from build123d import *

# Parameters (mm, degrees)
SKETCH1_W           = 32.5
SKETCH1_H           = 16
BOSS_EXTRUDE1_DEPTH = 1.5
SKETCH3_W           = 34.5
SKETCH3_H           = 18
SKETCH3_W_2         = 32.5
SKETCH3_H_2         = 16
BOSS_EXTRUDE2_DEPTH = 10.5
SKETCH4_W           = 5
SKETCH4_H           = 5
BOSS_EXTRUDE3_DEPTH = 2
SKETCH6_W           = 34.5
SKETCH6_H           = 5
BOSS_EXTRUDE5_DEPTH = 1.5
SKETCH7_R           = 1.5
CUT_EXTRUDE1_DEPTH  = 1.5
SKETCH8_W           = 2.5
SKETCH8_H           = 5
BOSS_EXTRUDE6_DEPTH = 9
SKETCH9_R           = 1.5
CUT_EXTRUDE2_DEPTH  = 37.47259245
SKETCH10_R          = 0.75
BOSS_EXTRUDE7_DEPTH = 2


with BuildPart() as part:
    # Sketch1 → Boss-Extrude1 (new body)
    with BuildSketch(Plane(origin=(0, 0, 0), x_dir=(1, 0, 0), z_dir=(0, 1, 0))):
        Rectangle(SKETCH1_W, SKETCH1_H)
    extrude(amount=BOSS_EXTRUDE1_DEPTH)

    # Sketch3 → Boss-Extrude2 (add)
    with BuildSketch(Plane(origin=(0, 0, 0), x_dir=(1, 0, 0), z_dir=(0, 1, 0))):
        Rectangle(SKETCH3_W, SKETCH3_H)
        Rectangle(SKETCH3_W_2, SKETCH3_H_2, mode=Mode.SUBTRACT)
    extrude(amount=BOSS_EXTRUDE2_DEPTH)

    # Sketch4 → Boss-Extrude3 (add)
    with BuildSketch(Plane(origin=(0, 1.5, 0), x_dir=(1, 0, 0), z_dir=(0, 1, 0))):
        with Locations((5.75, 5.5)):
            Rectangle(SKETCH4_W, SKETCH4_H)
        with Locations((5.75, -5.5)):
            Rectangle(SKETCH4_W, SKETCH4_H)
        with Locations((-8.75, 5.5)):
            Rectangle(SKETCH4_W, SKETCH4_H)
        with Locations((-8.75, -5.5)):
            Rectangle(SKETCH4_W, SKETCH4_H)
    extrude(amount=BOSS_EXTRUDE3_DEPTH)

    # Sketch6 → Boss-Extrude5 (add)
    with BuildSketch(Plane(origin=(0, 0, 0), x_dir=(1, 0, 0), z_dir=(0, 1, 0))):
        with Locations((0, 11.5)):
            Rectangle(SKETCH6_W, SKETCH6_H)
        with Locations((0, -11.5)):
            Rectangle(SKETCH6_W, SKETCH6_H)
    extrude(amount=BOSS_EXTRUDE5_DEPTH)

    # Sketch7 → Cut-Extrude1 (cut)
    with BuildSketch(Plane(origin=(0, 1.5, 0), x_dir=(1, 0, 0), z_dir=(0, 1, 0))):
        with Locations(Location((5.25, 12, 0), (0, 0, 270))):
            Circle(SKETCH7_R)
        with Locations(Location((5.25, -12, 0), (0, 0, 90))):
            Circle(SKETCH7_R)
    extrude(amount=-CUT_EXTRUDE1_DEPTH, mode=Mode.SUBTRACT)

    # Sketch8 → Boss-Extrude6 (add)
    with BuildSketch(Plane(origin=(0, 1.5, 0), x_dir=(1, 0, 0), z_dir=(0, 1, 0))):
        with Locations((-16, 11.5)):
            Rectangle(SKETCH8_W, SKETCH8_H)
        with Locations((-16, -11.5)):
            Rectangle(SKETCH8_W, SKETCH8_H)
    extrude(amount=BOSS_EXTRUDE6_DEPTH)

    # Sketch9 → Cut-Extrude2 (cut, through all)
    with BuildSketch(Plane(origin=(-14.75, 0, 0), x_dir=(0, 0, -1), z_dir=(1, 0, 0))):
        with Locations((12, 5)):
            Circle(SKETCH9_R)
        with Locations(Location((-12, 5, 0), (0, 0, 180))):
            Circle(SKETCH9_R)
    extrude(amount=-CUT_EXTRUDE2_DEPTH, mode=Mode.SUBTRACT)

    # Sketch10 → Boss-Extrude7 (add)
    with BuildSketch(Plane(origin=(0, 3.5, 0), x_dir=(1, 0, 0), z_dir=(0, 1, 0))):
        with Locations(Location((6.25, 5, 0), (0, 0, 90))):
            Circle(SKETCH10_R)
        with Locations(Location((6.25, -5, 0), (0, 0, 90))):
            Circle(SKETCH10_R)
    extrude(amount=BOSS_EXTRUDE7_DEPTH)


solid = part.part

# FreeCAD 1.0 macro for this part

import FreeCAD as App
import Part
import Sketcher

V = App.Vector

doc = App.newDocument("Part")
params = doc.addObject("Spreadsheet::Sheet", "Params")
for row, (alias, value) in enumerate([
    ("sketch1_height", "16 mm"),
    ("sketch1_width", "32.5 mm"),
    ("pad1_length", "1.5 mm"),
    ("sketch2_height", "18 mm"),
    ("sketch2_height2", "16 mm"),
    ("sketch2_width", "34.5 mm"),
    ("sketch2_width2", "32.5 mm"),
    ("pad2_length", "10.5 mm"),
    ("sketch3_width", "5 mm"),
    ("pad3_length", "2 mm"),
    ("sketch4_height", "5 mm"),
    ("sketch4_width", "34.5 mm"),
    ("pad4_length", "1.5 mm"),
    ("sketch5_diameter", "3 mm"),
    ("pocket1_length", "1.5 mm"),
    ("sketch6_height", "5 mm"),
    ("sketch6_width", "2.5 mm"),
    ("pad5_length", "9 mm"),
    ("sketch7_diameter", "3 mm"),
    ("sketch8_diameter", "1.5 mm"),
    ("pad6_length", "2 mm"),
], start=1):
    params.set(f"A{row}", alias)
    params.set(f"B{row}", "=" + value)
    params.setAlias(f"B{row}", alias)

body = doc.addObject("PartDesign::Body", "Body")

sketch1 = body.newObject("Sketcher::SketchObject", "Sketch")
sketch1.AttachmentSupport = (doc.getObject("XZ_Plane"), [""])
sketch1.MapMode = "FlatFace"
sketch1.addGeometry([
    Part.LineSegment(V(-16, -8, 0), V(-16, 8, 0)),
    Part.LineSegment(V(-16, 8, 0), V(16, 8, 0)),
    Part.LineSegment(V(16, 8, 0), V(16, -8, 0)),
    Part.LineSegment(V(16, -8, 0), V(-16, -8, 0)),
], False)
sketch1.addConstraint([
    Sketcher.Constraint("Coincident", 0, 2, 1, 1),
    Sketcher.Constraint("Coincident", 1, 2, 2, 1),
    Sketcher.Constraint("Coincident", 2, 2, 3, 1),
    Sketcher.Constraint("Coincident", 3, 2, 0, 1),
    Sketcher.Constraint("Vertical", 0),
    Sketcher.Constraint("Horizontal", 1),
    Sketcher.Constraint("Vertical", 2),
    Sketcher.Constraint("Horizontal", 3),
    Sketcher.Constraint("Symmetric", 0, 2, 2, 2, -1, 1),
    Sketcher.Constraint("DistanceY", 0, 1, 0, 2, 16.0),
    Sketcher.Constraint("DistanceX", 1, 1, 1, 2, 32.5),
])
sketch1.setExpression("Constraints[9]", "Params.sketch1_height")
sketch1.setExpression("Constraints[10]", "Params.sketch1_width")
pad1 = body.newObject("PartDesign::Pad", "Pad")
pad1.Profile = sketch1
pad1.setExpression("Length", "Params.pad1_length")
pad1.Reversed = True

sketch2 = body.newObject("Sketcher::SketchObject", "Sketch001")
sketch2.AttachmentSupport = (doc.getObject("XZ_Plane"), [""])
sketch2.MapMode = "FlatFace"
sketch2.addGeometry([
    Part.LineSegment(V(-17, -9, 0), V(-17, 9, 0)),
    Part.LineSegment(V(-17, 9, 0), V(17, 9, 0)),
    Part.LineSegment(V(17, 9, 0), V(17, -9, 0)),
    Part.LineSegment(V(17, -9, 0), V(-17, -9, 0)),
    Part.LineSegment(V(16, 8, 0), V(-16, 8, 0)),
    Part.LineSegment(V(-16, 8, 0), V(-16, -8, 0)),
    Part.LineSegment(V(-16, -8, 0), V(16, -8, 0)),
    Part.LineSegment(V(16, -8, 0), V(16, 8, 0)),
], False)
sketch2.addConstraint([
    Sketcher.Constraint("Coincident", 0, 2, 1, 1),
    Sketcher.Constraint("Coincident", 1, 2, 2, 1),
    Sketcher.Constraint("Coincident", 2, 2, 3, 1),
    Sketcher.Constraint("Coincident", 3, 2, 0, 1),
    Sketcher.Constraint("Coincident", 4, 2, 5, 1),
    Sketcher.Constraint("Coincident", 5, 2, 6, 1),
    Sketcher.Constraint("Coincident", 6, 2, 7, 1),
    Sketcher.Constraint("Coincident", 7, 2, 4, 1),
    Sketcher.Constraint("Vertical", 0),
    Sketcher.Constraint("Horizontal", 1),
    Sketcher.Constraint("Vertical", 2),
    Sketcher.Constraint("Horizontal", 3),
    Sketcher.Constraint("Horizontal", 4),
    Sketcher.Constraint("Vertical", 5),
    Sketcher.Constraint("Horizontal", 6),
    Sketcher.Constraint("Vertical", 7),
    Sketcher.Constraint("Symmetric", 0, 2, 2, 2, -1, 1),
    Sketcher.Constraint("Symmetric", 4, 2, 6, 2, -1, 1),
    Sketcher.Constraint("DistanceY", 0, 1, 0, 2, 18.0),
    Sketcher.Constraint("DistanceY", 5, 2, 5, 1, 16.0),
    Sketcher.Constraint("DistanceX", 1, 1, 1, 2, 34.5),
    Sketcher.Constraint("DistanceX", 4, 2, 4, 1, 32.5),
])
sketch2.setExpression("Constraints[18]", "Params.sketch2_height")
sketch2.setExpression("Constraints[19]", "Params.sketch2_height2")
sketch2.setExpression("Constraints[20]", "Params.sketch2_width")
sketch2.setExpression("Constraints[21]", "Params.sketch2_width2")
pad2 = body.newObject("PartDesign::Pad", "Pad001")
pad2.Profile = sketch2
pad2.setExpression("Length", "Params.pad2_length")
pad2.Reversed = True

sketch3 = body.newObject("Sketcher::SketchObject", "Sketch002")
sketch3.AttachmentSupport = (doc.getObject("XZ_Plane"), [""])
sketch3.MapMode = "FlatFace"
sketch3.AttachmentOffset = App.Placement(V(0, 0, -1.5), App.Rotation())
sketch3.addGeometry([
    Part.LineSegment(V(3, -8, 0), V(3, -3, 0)),
    Part.LineSegment(V(3, -3, 0), V(8, -3, 0)),
    Part.LineSegment(V(8, -3, 0), V(8, -8, 0)),
    Part.LineSegment(V(8, -8, 0), V(3, -8, 0)),
    Part.LineSegment(V(3, 3, 0), V(3, 8, 0)),
    Part.LineSegment(V(3, 8, 0), V(8, 8, 0)),
    Part.LineSegment(V(8, 8, 0), V(8, 3, 0)),
    Part.LineSegment(V(8, 3, 0), V(3, 3, 0)),
    Part.LineSegment(V(-11, -8, 0), V(-11, -3, 0)),
    Part.LineSegment(V(-11, -3, 0), V(-6, -3, 0)),
    Part.LineSegment(V(-6, -3, 0), V(-6, -8, 0)),
    Part.LineSegment(V(-6, -8, 0), V(-11, -8, 0)),
    Part.LineSegment(V(-11, 3, 0), V(-11, 8, 0)),
    Part.LineSegment(V(-11, 8, 0), V(-6, 8, 0)),
    Part.LineSegment(V(-6, 8, 0), V(-6, 3, 0)),
    Part.LineSegment(V(-6, 3, 0), V(-11, 3, 0)),
], False)
sketch3.addConstraint([
    Sketcher.Constraint("Coincident", 0, 2, 1, 1),
    Sketcher.Constraint("Coincident", 1, 2, 2, 1),
    Sketcher.Constraint("Coincident", 2, 2, 3, 1),
    Sketcher.Constraint("Coincident", 3, 2, 0, 1),
    Sketcher.Constraint("Coincident", 4, 2, 5, 1),
    Sketcher.Constraint("Coincident", 5, 2, 6, 1),
    Sketcher.Constraint("Coincident", 6, 2, 7, 1),
    Sketcher.Constraint("Coincident", 7, 2, 4, 1),
    Sketcher.Constraint("Coincident", 8, 2, 9, 1),
    Sketcher.Constraint("Coincident", 9, 2, 10, 1),
    Sketcher.Constraint("Coincident", 10, 2, 11, 1),
    Sketcher.Constraint("Coincident", 11, 2, 8, 1),
    Sketcher.Constraint("Coincident", 12, 2, 13, 1),
    Sketcher.Constraint("Coincident", 13, 2, 14, 1),
    Sketcher.Constraint("Coincident", 14, 2, 15, 1),
    Sketcher.Constraint("Coincident", 15, 2, 12, 1),
    Sketcher.Constraint("Vertical", 0),
    Sketcher.Constraint("Horizontal", 1),
    Sketcher.Constraint("Vertical", 2),
    Sketcher.Constraint("Horizontal", 3),
    Sketcher.Constraint("Vertical", 4),
    Sketcher.Constraint("Horizontal", 5),
    Sketcher.Constraint("Vertical", 6),
    Sketcher.Constraint("Horizontal", 7),
    Sketcher.Constraint("Vertical", 8),
    Sketcher.Constraint("Horizontal", 9),
    Sketcher.Constraint("Vertical", 10),
    Sketcher.Constraint("Horizontal", 11),
    Sketcher.Constraint("Vertical", 12),
    Sketcher.Constraint("Horizontal", 13),
    Sketcher.Constraint("Vertical", 14),
    Sketcher.Constraint("Horizontal", 15),
    Sketcher.Constraint("Symmetric", 3, 2, 4, 2, -1),
    Sketcher.Constraint("Symmetric", 1, 2, 6, 2, -1),
    Sketcher.Constraint("Symmetric", 11, 2, 12, 2, -1),
    Sketcher.Constraint("Symmetric", 9, 2, 14, 2, -1),
    Sketcher.Constraint("Horizontal", 1, 2, 8, 2),
    Sketcher.Constraint("Horizontal", 3, 2, 10, 2),
    Sketcher.Constraint("Equal", 7, 9),
    Sketcher.Constraint("Equal", 15, 0),
    Sketcher.Constraint("DistanceX", 1, 1, 1, 2, 5.0),
    Sketcher.Constraint("DistanceY", 0, 2, -1, 1, 3.0),
    Sketcher.Constraint("DistanceX", 8, 2, 0, 2, 14.5),
    Sketcher.Constraint("DistanceX", -1, 1, 0, 2, 3.25),
])
sketch3.setExpression("Constraints[40]", "Params.sketch3_width")
pad3 = body.newObject("PartDesign::Pad", "Pad002")
pad3.Profile = sketch3
pad3.setExpression("Length", "Params.pad3_length")
pad3.Reversed = True

sketch4 = body.newObject("Sketcher::SketchObject", "Sketch003")
sketch4.AttachmentSupport = (doc.getObject("XZ_Plane"), [""])
sketch4.MapMode = "FlatFace"
sketch4.addGeometry([
    Part.LineSegment(V(-17, -14, 0), V(-17, -9, 0)),
    Part.LineSegment(V(-17, -9, 0), V(17, -9, 0)),
    Part.LineSegment(V(17, -9, 0), V(17, -14, 0)),
    Part.LineSegment(V(17, -14, 0), V(-17, -14, 0)),
    Part.LineSegment(V(-17, 9, 0), V(-17, 14, 0)),
    Part.LineSegment(V(-17, 14, 0), V(17, 14, 0)),
    Part.LineSegment(V(17, 14, 0), V(17, 9, 0)),
    Part.LineSegment(V(17, 9, 0), V(-17, 9, 0)),
], False)
sketch4.addConstraint([
    Sketcher.Constraint("Coincident", 0, 2, 1, 1),
    Sketcher.Constraint("Coincident", 1, 2, 2, 1),
    Sketcher.Constraint("Coincident", 2, 2, 3, 1),
    Sketcher.Constraint("Coincident", 3, 2, 0, 1),
    Sketcher.Constraint("Coincident", 4, 2, 5, 1),
    Sketcher.Constraint("Coincident", 5, 2, 6, 1),
    Sketcher.Constraint("Coincident", 6, 2, 7, 1),
    Sketcher.Constraint("Coincident", 7, 2, 4, 1),
    Sketcher.Constraint("Vertical", 0),
    Sketcher.Constraint("Horizontal", 1),
    Sketcher.Constraint("Vertical", 2),
    Sketcher.Constraint("Horizontal", 3),
    Sketcher.Constraint("Vertical", 4),
    Sketcher.Constraint("Horizontal", 5),
    Sketcher.Constraint("Vertical", 6),
    Sketcher.Constraint("Horizontal", 7),
    Sketcher.Constraint("Symmetric", 2, 2, 4, 2, -1, 1),
    Sketcher.Constraint("Symmetric", 0, 2, 6, 2, -1, 1),
    Sketcher.Constraint("Vertical", 3, 2, 4, 2),
    Sketcher.Constraint("DistanceY", 0, 1, 0, 2, 5.0),
    Sketcher.Constraint("DistanceX", 1, 1, 1, 2, 34.5),
    Sketcher.Constraint("DistanceY", 0, 2, -1, 1, 9.0),
])
sketch4.setExpression("Constraints[19]", "Params.sketch4_height")
sketch4.setExpression("Constraints[20]", "Params.sketch4_width")
pad4 = body.newObject("PartDesign::Pad", "Pad003")
pad4.Profile = sketch4
pad4.setExpression("Length", "Params.pad4_length")
pad4.Reversed = True

sketch5 = body.newObject("Sketcher::SketchObject", "Sketch004")
sketch5.AttachmentSupport = (doc.getObject("XZ_Plane"), [""])
sketch5.MapMode = "FlatFace"
sketch5.AttachmentOffset = App.Placement(V(0, 0, -1.5), App.Rotation())
sketch5.addGeometry([
    Part.Circle(V(5.2, -12, 0), V(0, 0, 1), 1.5),
    Part.Circle(V(5.2, 12, 0), V(0, 0, 1), 1.5),
], False)
sketch5.addConstraint([
    Sketcher.Constraint("Equal", 0, 1),
    Sketcher.Constraint("Symmetric", 0, 3, 1, 3, -1),
    Sketcher.Constraint("Diameter", 0, 3.0),
    Sketcher.Constraint("DistanceY", 0, 3, -1, 1, 12.0),
    Sketcher.Constraint("DistanceX", -1, 1, 0, 3, 5.25),
])
sketch5.setExpression("Constraints[2]", "Params.sketch5_diameter")
pocket1 = body.newObject("PartDesign::Pocket", "Pocket")
pocket1.Profile = sketch5
pocket1.setExpression("Length", "Params.pocket1_length")
pocket1.Reversed = True

sketch6 = body.newObject("Sketcher::SketchObject", "Sketch005")
sketch6.AttachmentSupport = (doc.getObject("XZ_Plane"), [""])
sketch6.MapMode = "FlatFace"
sketch6.AttachmentOffset = App.Placement(V(0, 0, -1.5), App.Rotation())
sketch6.addGeometry([
    Part.LineSegment(V(-17.2, -14, 0), V(-17.2, -9, 0)),
    Part.LineSegment(V(-17.2, -9, 0), V(-14.8, -9, 0)),
    Part.LineSegment(V(-14.8, -9, 0), V(-14.8, -14, 0)),
    Part.LineSegment(V(-14.8, -14, 0), V(-17.2, -14, 0)),
    Part.LineSegment(V(-17.2, 9, 0), V(-17.2, 14, 0)),
    Part.LineSegment(V(-17.2, 14, 0), V(-14.8, 14, 0)),
    Part.LineSegment(V(-14.8, 14, 0), V(-14.8, 9, 0)),
    Part.LineSegment(V(-14.8, 9, 0), V(-17.2, 9, 0)),
], False)
sketch6.addConstraint([
    Sketcher.Constraint("Coincident", 0, 2, 1, 1),
    Sketcher.Constraint("Coincident", 1, 2, 2, 1),
    Sketcher.Constraint("Coincident", 2, 2, 3, 1),
    Sketcher.Constraint("Coincident", 3, 2, 0, 1),
    Sketcher.Constraint("Coincident", 4, 2, 5, 1),
    Sketcher.Constraint("Coincident", 5, 2, 6, 1),
    Sketcher.Constraint("Coincident", 6, 2, 7, 1),
    Sketcher.Constraint("Coincident", 7, 2, 4, 1),
    Sketcher.Constraint("Vertical", 0),
    Sketcher.Constraint("Horizontal", 1),
    Sketcher.Constraint("Vertical", 2),
    Sketcher.Constraint("Horizontal", 3),
    Sketcher.Constraint("Vertical", 4),
    Sketcher.Constraint("Horizontal", 5),
    Sketcher.Constraint("Vertical", 6),
    Sketcher.Constraint("Horizontal", 7),
    Sketcher.Constraint("Symmetric", 3, 2, 4, 2, -1),
    Sketcher.Constraint("Symmetric", 1, 2, 6, 2, -1),
    Sketcher.Constraint("DistanceY", 0, 1, 0, 2, 5.0),
    Sketcher.Constraint("DistanceX", 1, 1, 1, 2, 2.5),
    Sketcher.Constraint("DistanceY", 0, 2, -1, 1, 9.0),
    Sketcher.Constraint("DistanceX", 0, 2, -1, 1, 17.25),
])
sketch6.setExpression("Constraints[18]", "Params.sketch6_height")
sketch6.setExpression("Constraints[19]", "Params.sketch6_width")
pad5 = body.newObject("PartDesign::Pad", "Pad004")
pad5.Profile = sketch6
pad5.setExpression("Length", "Params.pad5_length")
pad5.Reversed = True

sketch7 = body.newObject("Sketcher::SketchObject", "Sketch006")
sketch7.AttachmentSupport = (doc.getObject("YZ_Plane"), [""])
sketch7.MapMode = "FlatFace"
sketch7.AttachmentOffset = App.Placement(V(0, 0, -14.75), App.Rotation())
sketch7.addGeometry([
    Part.Circle(V(5, -12, 0), V(0, 0, 1), 1.5),
    Part.Circle(V(5, 12, 0), V(0, 0, 1), 1.5),
], False)
sketch7.addConstraint([
    Sketcher.Constraint("Equal", 0, 1),
    Sketcher.Constraint("Symmetric", 0, 3, 1, 3, -1),
    Sketcher.Constraint("Diameter", 0, 3.0),
    Sketcher.Constraint("DistanceX", -1, 1, 0, 3, 5.0),
    Sketcher.Constraint("DistanceY", 0, 3, -1, 1, 12.0),
])
sketch7.setExpression("Constraints[2]", "Params.sketch7_diameter")
pocket2 = body.newObject("PartDesign::Pocket", "Pocket001")
pocket2.Profile = sketch7
pocket2.Type = "ThroughAll"

sketch8 = body.newObject("Sketcher::SketchObject", "Sketch007")
sketch8.AttachmentSupport = (doc.getObject("XZ_Plane"), [""])
sketch8.MapMode = "FlatFace"
sketch8.AttachmentOffset = App.Placement(V(0, 0, -3.5), App.Rotation())
sketch8.addGeometry([
    Part.Circle(V(6.2, -5, 0), V(0, 0, 1), 0.8),
    Part.Circle(V(6.2, 5, 0), V(0, 0, 1), 0.8),
], False)
sketch8.addConstraint([
    Sketcher.Constraint("Equal", 0, 1),
    Sketcher.Constraint("Symmetric", 0, 3, 1, 3, -1),
    Sketcher.Constraint("Diameter", 0, 1.5),
    Sketcher.Constraint("DistanceY", 0, 3, -1, 1, 5.0),
    Sketcher.Constraint("DistanceX", -1, 1, 0, 3, 6.25),
])
sketch8.setExpression("Constraints[2]", "Params.sketch8_diameter")
pad6 = body.newObject("PartDesign::Pad", "Pad005")
pad6.Profile = sketch8
pad6.setExpression("Length", "Params.pad6_length")
pad6.Reversed = True

doc.recompute()
